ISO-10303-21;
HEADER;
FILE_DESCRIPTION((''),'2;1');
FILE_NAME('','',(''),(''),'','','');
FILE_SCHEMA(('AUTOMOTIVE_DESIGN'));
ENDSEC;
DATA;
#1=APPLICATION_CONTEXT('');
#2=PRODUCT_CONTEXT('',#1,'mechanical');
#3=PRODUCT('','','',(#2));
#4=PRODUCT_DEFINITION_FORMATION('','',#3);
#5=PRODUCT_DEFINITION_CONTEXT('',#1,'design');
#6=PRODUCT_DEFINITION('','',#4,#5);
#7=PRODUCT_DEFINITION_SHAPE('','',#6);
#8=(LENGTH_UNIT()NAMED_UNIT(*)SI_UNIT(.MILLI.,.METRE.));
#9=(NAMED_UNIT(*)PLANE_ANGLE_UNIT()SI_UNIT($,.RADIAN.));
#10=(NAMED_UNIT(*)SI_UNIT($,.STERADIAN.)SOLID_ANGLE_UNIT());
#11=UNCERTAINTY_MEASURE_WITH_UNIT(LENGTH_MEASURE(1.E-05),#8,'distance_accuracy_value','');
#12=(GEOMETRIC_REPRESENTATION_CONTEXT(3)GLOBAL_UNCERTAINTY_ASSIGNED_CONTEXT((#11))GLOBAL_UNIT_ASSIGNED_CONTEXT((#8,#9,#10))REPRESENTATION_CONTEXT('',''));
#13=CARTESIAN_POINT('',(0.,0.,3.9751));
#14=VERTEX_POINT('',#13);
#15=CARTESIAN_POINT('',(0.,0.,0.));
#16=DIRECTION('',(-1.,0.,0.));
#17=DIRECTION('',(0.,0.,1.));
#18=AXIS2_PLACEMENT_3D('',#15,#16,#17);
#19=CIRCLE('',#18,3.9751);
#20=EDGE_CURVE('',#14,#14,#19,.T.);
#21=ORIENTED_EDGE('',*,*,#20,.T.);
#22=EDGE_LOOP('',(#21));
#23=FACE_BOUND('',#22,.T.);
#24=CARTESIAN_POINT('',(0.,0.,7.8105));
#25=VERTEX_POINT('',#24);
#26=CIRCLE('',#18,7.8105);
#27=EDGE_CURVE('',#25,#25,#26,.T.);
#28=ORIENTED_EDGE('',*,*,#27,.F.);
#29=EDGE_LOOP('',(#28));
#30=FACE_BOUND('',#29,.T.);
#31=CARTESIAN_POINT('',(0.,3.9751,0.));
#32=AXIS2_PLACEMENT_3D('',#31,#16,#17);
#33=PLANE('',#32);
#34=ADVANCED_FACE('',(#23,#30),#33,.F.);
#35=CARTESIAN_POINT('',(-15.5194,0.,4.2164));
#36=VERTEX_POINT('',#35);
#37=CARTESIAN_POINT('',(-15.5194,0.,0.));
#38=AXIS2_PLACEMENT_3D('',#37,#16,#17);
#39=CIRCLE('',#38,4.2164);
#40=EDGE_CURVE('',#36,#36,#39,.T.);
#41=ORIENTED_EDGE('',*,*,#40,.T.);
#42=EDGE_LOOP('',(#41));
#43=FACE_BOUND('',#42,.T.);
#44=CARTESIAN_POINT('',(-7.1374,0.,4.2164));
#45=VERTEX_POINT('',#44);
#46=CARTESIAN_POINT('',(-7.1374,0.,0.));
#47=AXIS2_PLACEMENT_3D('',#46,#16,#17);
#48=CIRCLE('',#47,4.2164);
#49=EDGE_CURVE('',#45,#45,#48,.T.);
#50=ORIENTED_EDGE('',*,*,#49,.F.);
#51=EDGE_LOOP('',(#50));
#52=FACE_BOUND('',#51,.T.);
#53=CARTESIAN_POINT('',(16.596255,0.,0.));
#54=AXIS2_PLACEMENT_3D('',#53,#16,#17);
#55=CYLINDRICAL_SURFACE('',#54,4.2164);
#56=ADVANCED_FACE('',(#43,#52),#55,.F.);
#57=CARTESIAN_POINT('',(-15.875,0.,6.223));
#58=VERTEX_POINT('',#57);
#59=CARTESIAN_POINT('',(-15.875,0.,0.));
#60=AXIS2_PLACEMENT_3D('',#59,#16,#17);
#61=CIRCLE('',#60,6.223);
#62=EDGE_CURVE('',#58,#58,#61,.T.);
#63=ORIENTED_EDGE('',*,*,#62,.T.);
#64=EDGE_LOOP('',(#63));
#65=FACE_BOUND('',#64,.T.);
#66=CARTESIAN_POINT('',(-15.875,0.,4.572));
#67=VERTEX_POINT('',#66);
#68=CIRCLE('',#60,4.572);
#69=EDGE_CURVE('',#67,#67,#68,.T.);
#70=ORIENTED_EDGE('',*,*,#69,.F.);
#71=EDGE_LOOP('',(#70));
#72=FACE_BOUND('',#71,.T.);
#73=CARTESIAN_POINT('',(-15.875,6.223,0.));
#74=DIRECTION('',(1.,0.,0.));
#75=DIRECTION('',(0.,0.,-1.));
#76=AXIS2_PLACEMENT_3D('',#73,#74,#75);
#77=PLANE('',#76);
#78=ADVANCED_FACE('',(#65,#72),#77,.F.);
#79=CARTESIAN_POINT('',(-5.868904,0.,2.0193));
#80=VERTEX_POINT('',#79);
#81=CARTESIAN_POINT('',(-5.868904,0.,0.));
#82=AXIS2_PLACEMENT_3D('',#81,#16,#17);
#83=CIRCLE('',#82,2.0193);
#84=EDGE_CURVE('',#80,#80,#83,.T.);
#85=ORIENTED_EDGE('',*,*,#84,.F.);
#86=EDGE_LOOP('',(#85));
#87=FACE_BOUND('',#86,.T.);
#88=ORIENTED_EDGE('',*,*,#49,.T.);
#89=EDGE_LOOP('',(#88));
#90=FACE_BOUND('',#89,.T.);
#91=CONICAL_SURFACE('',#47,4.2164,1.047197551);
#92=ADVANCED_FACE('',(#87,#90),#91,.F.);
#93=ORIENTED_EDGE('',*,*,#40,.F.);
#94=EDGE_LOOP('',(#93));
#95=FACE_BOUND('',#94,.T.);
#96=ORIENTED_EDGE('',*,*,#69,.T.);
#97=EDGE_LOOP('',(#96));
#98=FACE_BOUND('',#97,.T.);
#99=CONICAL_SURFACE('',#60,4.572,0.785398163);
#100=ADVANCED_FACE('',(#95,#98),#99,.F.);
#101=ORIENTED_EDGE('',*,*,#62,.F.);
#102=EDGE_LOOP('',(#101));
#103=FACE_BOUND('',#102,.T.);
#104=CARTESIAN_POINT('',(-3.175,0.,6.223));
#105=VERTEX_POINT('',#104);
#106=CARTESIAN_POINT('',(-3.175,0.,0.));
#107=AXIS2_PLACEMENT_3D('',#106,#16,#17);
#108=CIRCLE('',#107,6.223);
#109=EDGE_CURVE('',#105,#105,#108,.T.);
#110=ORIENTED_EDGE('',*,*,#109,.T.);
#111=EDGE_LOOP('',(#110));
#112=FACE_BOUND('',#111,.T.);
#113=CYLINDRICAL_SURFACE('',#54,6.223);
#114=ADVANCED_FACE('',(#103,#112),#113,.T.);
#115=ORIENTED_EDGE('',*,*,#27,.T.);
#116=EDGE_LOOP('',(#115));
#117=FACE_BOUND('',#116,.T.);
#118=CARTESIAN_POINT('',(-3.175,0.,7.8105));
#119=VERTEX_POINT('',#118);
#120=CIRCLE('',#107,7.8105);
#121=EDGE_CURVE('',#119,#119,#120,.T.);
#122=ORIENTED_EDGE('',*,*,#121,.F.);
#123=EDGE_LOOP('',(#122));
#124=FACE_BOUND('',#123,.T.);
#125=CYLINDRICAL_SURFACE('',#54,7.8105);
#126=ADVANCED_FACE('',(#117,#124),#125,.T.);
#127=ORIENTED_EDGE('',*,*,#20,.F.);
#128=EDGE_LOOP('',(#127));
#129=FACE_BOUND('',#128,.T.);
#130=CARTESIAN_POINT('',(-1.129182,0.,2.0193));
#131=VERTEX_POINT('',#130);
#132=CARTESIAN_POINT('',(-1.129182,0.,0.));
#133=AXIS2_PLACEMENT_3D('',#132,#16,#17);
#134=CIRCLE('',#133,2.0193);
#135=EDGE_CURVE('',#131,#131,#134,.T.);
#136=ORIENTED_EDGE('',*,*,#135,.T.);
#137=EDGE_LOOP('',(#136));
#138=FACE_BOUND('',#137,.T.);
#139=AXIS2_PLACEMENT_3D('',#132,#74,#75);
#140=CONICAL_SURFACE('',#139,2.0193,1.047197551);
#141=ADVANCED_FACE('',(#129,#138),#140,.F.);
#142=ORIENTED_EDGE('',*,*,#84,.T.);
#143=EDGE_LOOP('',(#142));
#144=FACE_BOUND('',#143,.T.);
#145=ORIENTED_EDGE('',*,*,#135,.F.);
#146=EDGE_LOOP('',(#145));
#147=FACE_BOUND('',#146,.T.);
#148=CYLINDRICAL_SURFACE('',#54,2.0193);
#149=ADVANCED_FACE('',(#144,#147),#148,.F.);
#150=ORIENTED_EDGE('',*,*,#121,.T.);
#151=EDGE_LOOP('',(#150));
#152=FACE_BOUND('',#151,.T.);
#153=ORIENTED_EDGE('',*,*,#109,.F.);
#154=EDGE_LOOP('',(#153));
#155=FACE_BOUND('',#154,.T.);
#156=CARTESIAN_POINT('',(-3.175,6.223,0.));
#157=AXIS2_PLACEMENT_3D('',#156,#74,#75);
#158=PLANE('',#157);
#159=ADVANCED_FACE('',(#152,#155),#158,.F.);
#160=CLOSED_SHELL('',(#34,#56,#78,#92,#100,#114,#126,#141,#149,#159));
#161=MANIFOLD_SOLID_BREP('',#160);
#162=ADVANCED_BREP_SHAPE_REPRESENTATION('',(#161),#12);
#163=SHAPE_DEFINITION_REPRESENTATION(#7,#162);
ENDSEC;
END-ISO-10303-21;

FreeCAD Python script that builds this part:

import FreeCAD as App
import Part
import Sketcher
Q = App.Units.Quantity


def add_polygon(sketch, points):
    """Adds a closed chain of lines whose ends are joined by coincident constraints."""
    first, n = sketch.GeometryCount, len(points)
    for a, b in zip(points, points[1:] + points[:1]):
        sketch.addGeometry(Part.LineSegment(App.Vector(*a, 0), App.Vector(*b, 0)), False)
    for i in range(n):
        sketch.addConstraint(Sketcher.Constraint("Coincident", first + i, 2, first + (i + 1) % n, 1))

doc = App.newDocument("Part")
body = doc.addObject("PartDesign::Body", "Body")

sketch1 = body.newObject("Sketcher::SketchObject", "Sketch")
sketch1.AttachmentSupport = (doc.getObject("XY_Plane"), [""])
sketch1.MapMode = "FlatFace"
add_polygon(sketch1, [(0, 3.9751), (0, 7.8105), (-3.175, 7.8105), (-3.175, 6.223), (-15.875, 6.223), (-15.875, 4.572), (-15.5194, 4.2164), (-7.1374, 4.2164), (-5.868904, 2.0193), (-1.129182, 2.0193)])
sketch1.addConstraint(Sketcher.Constraint("Vertical", 0))
sketch1.addConstraint(Sketcher.Constraint("Horizontal", 1))
sketch1.addConstraint(Sketcher.Constraint("Vertical", 2))
sketch1.addConstraint(Sketcher.Constraint("Horizontal", 3))
sketch1.addConstraint(Sketcher.Constraint("Vertical", 4))
sketch1.addConstraint(Sketcher.Constraint("Horizontal", 6))
sketch1.addConstraint(Sketcher.Constraint("Horizontal", 8))
sketch1.addConstraint(Sketcher.Constraint("PointOnObject", 0, 2, -2))
sketch1.addConstraint(Sketcher.Constraint("DistanceX", 3, 2, 3, 1, Q("0.5 in")))
sketch1.addConstraint(Sketcher.Constraint("Angle", 5, Q("-45 deg")))
sketch1.addConstraint(Sketcher.Constraint("Angle", 7, Q("-60 deg")))
sketch1.addConstraint(Sketcher.Constraint("Angle", 9, Q("60 deg")))
sketch1.addConstraint(Sketcher.Constraint("DistanceX", 6, 1, 6, 2, Q("0.33 in")))
sketch1.addConstraint(Sketcher.Constraint("DistanceX", 1, 2, 1, 1, Q("0.125 in")))
sketch1.addConstraint(Sketcher.Constraint("DistanceY", 0, 1, 0, 2, Q("0.151 in")))
sketch1.addConstraint(Sketcher.Constraint("DistanceY", 2, 2, 2, 1, Q("0.0625 in")))
sketch1.addConstraint(Sketcher.Constraint("DistanceY", 4, 2, 4, 1, Q("0.065 in")))
sketch1.addConstraint(Sketcher.Constraint("DistanceY", -1, 1, 4, 2, Q("0.18 in")))
sketch1.addConstraint(Sketcher.Constraint("DistanceX", 5, 2, -1, 1, Q("0.611 in")))
sketch1.addConstraint(Sketcher.Constraint("DistanceY", 7, 2, 1, 2, Q("0.228 in")))
revolution = body.newObject("PartDesign::Revolution", "Revolution")
revolution.Profile = sketch1
revolution.ReferenceAxis = (sketch1, ["H_Axis"])
revolution.Angle = 360

doc.recompute()
